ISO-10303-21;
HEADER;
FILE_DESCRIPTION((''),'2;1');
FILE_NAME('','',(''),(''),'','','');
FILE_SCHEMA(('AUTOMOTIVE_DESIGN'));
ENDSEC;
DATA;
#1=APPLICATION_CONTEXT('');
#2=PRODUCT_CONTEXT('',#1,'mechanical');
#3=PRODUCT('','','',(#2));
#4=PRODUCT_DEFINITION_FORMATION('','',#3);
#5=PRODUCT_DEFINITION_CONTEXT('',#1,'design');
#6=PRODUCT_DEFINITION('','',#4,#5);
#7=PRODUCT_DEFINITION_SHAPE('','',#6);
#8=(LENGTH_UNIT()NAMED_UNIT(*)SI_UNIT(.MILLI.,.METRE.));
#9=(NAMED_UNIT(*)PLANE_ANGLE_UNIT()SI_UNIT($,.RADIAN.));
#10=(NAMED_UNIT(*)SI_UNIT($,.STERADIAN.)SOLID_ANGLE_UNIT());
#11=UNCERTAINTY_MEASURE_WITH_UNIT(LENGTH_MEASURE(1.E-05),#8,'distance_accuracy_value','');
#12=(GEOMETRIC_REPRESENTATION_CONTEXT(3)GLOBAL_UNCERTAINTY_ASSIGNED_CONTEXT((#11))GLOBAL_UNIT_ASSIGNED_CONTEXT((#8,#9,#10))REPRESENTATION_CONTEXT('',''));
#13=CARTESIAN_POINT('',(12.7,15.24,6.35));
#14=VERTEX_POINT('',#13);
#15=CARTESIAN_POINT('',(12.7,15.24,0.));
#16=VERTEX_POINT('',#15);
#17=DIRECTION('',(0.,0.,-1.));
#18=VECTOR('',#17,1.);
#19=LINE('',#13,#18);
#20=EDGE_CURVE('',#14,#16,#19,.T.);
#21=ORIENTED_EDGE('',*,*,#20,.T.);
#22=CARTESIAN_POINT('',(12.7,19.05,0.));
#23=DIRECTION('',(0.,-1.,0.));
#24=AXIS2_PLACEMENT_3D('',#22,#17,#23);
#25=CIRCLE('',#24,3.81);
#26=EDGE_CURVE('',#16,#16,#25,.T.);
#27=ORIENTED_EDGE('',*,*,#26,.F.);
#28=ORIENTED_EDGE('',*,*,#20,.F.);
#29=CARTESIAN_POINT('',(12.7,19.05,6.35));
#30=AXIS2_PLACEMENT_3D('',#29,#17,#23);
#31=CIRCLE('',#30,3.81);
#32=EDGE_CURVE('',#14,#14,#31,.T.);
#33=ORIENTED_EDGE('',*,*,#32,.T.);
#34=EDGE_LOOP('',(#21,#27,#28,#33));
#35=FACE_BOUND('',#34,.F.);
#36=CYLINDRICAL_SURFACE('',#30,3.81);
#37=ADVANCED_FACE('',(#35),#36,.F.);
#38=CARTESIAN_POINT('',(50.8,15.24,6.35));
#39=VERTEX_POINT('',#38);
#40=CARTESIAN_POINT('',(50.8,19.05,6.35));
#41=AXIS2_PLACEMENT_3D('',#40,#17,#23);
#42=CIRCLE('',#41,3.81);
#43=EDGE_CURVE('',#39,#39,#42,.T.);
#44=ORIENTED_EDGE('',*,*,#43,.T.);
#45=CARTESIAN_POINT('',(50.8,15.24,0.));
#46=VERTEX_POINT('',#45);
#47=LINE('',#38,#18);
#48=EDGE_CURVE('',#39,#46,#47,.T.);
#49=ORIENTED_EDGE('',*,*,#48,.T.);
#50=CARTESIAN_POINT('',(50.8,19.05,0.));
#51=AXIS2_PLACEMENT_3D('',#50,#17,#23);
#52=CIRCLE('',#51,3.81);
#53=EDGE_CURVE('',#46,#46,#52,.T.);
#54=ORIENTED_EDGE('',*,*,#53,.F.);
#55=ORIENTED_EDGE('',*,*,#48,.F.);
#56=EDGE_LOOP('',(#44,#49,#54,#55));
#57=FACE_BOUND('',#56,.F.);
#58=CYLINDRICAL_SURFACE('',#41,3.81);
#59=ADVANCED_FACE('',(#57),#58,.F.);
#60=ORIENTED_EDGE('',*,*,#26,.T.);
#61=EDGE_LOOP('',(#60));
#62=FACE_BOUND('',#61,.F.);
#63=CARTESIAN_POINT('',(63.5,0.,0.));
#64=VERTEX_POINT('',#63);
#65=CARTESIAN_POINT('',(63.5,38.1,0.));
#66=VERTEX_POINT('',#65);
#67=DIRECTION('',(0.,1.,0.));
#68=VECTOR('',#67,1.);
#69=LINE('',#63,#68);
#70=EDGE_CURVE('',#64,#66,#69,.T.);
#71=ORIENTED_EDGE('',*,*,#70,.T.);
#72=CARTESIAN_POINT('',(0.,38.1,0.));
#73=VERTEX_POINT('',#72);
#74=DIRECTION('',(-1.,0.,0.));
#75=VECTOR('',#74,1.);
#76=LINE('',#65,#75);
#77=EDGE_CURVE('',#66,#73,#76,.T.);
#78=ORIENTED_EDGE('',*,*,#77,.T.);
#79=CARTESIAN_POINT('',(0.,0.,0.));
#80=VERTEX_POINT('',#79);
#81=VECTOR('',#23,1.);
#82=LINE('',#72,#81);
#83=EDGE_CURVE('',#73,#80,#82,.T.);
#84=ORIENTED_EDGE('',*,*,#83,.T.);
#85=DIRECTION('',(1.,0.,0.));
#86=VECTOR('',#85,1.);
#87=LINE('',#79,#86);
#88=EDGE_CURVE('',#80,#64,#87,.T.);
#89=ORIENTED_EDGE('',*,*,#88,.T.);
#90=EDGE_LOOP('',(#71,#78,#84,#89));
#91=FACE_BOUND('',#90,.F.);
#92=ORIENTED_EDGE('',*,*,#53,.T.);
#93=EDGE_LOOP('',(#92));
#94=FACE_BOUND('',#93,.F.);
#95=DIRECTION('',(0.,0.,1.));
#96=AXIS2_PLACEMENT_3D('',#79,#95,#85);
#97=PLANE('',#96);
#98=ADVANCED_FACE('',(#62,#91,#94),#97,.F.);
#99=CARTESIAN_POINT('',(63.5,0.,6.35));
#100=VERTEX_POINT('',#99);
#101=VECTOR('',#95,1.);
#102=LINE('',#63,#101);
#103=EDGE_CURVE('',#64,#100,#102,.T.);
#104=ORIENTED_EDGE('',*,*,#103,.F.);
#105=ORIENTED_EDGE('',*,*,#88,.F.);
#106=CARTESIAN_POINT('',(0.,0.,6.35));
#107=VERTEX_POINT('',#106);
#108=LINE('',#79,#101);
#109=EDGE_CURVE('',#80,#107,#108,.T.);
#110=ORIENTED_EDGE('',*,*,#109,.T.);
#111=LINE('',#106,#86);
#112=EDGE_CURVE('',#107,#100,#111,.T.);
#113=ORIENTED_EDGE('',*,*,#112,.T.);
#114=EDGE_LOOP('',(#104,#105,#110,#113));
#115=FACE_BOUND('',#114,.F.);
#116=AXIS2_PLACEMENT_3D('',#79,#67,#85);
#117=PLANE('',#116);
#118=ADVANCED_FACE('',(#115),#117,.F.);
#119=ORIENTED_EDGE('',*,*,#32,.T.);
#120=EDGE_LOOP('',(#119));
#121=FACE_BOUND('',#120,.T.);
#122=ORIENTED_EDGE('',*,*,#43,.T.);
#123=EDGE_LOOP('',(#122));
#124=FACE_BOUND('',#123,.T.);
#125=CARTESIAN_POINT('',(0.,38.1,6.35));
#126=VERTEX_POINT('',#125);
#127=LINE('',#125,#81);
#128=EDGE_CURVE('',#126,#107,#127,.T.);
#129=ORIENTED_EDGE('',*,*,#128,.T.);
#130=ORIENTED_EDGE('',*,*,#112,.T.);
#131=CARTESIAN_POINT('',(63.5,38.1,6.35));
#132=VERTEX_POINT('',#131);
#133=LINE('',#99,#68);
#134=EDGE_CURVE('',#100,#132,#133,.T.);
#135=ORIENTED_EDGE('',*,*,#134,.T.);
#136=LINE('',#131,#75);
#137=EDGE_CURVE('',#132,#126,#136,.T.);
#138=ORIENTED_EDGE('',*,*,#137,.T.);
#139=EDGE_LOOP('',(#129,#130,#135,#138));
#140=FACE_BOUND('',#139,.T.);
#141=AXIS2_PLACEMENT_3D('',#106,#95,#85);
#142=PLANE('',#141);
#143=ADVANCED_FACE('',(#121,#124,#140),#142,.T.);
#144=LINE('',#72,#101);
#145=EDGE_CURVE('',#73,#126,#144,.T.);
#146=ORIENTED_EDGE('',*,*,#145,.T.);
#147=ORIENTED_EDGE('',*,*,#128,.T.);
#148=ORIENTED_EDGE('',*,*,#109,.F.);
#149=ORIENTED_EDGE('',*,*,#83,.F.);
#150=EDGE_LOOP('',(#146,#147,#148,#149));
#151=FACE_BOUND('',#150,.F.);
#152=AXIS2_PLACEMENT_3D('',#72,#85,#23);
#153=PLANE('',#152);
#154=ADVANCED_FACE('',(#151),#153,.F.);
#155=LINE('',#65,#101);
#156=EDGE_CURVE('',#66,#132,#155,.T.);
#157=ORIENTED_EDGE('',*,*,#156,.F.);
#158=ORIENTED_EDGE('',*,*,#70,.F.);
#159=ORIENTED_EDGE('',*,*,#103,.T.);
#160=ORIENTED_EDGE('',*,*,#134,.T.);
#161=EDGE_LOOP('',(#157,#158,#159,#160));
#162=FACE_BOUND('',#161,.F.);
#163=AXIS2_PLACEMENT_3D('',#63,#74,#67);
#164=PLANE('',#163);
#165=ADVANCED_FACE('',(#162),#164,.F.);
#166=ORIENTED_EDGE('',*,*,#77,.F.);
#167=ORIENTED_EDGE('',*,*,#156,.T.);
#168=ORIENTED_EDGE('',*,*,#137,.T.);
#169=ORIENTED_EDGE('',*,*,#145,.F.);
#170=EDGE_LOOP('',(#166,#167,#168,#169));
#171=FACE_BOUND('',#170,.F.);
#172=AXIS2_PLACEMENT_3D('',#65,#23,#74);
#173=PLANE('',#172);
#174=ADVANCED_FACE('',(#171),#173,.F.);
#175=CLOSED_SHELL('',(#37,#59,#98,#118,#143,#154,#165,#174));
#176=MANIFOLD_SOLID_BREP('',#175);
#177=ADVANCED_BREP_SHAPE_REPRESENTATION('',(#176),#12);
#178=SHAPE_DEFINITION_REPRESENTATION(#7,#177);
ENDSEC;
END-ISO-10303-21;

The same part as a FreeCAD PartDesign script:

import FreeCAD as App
import Part
import Sketcher

V = App.Vector
Q = App.Units.Quantity


def add_polygon(sketch, points):
    """Adds a closed chain of lines whose ends are joined by coincident constraints."""
    first, n = sketch.GeometryCount, len(points)
    for a, b in zip(points, points[1:] + points[:1]):
        sketch.addGeometry(Part.LineSegment(App.Vector(*a, 0), App.Vector(*b, 0)), False)
    for i in range(n):
        sketch.addConstraint(Sketcher.Constraint("Coincident", first + i, 2, first + (i + 1) % n, 1))

doc = App.newDocument("Part")
body = doc.addObject("PartDesign::Body", "Body")

# Sketch on XY plane
sketch1 = body.newObject("Sketcher::SketchObject", "Sketch")
sketch1.AttachmentSupport = (doc.getObject("XY_Plane"), [""])
sketch1.MapMode = "FlatFace"
add_polygon(sketch1, [(0, 38), (0, 0), (64, 0), (64, 38)])  # lines 0-3
sketch1.addConstraint([
    Sketcher.Constraint("Vertical", 0),
    Sketcher.Constraint("Horizontal", 1),
    Sketcher.Constraint("Vertical", 2),
    Sketcher.Constraint("Horizontal", 3),
    Sketcher.Constraint("Coincident", 0, 2, -1, 1),
    Sketcher.Constraint("DistanceX", 1, 1, 1, 2, Q("2.5 in")),
    Sketcher.Constraint("DistanceY", 0, 2, 0, 1, Q("1.5 in")),
])
pad1 = body.newObject("PartDesign::Pad", "Pad")
pad1.Profile = sketch1
pad1.Length = Q("0.25 in")

# Sketch on XY plane
sketch2 = body.newObject("Sketcher::SketchObject", "Sketch001")
sketch2.AttachmentSupport = (doc.getObject("XY_Plane"), [""])
sketch2.MapMode = "FlatFace"
sketch2.AttachmentOffset = App.Placement(V(0, 0, 0.25 * 25.4), App.Rotation())
sketch2.addGeometry([
    Part.Circle(V(12.7, 19.1, 0), V(0, 0, 1), 3.8),
    Part.Circle(V(50.8, 19.1, 0), V(0, 0, 1), 3.8),
], False)
sketch2.addConstraint([
    Sketcher.Constraint("Equal", 0, 1),
    Sketcher.Constraint("Horizontal", 0, 3, 1, 3),
    Sketcher.Constraint("Diameter", 0, Q("0.3 in")),
    Sketcher.Constraint("DistanceX", -1, 1, 1, 3, Q("2 in")),
    Sketcher.Constraint("DistanceX", -1, 1, 0, 3, Q("0.5 in")),
    Sketcher.Constraint("DistanceY", -1, 1, 0, 3, Q("0.75 in")),
])
doc.recompute()
hole = body.newObject("PartDesign::Hole", "Hole")
hole.Profile = sketch2
hole.ThreadType = "None"
hole.Diameter = Q("0.3 in")
hole.DepthType = "Dimension"
hole.Depth = Q("1 in")
hole.DrillPoint = "Angled"
hole.DrillPointAngle = 118

doc.recompute()
